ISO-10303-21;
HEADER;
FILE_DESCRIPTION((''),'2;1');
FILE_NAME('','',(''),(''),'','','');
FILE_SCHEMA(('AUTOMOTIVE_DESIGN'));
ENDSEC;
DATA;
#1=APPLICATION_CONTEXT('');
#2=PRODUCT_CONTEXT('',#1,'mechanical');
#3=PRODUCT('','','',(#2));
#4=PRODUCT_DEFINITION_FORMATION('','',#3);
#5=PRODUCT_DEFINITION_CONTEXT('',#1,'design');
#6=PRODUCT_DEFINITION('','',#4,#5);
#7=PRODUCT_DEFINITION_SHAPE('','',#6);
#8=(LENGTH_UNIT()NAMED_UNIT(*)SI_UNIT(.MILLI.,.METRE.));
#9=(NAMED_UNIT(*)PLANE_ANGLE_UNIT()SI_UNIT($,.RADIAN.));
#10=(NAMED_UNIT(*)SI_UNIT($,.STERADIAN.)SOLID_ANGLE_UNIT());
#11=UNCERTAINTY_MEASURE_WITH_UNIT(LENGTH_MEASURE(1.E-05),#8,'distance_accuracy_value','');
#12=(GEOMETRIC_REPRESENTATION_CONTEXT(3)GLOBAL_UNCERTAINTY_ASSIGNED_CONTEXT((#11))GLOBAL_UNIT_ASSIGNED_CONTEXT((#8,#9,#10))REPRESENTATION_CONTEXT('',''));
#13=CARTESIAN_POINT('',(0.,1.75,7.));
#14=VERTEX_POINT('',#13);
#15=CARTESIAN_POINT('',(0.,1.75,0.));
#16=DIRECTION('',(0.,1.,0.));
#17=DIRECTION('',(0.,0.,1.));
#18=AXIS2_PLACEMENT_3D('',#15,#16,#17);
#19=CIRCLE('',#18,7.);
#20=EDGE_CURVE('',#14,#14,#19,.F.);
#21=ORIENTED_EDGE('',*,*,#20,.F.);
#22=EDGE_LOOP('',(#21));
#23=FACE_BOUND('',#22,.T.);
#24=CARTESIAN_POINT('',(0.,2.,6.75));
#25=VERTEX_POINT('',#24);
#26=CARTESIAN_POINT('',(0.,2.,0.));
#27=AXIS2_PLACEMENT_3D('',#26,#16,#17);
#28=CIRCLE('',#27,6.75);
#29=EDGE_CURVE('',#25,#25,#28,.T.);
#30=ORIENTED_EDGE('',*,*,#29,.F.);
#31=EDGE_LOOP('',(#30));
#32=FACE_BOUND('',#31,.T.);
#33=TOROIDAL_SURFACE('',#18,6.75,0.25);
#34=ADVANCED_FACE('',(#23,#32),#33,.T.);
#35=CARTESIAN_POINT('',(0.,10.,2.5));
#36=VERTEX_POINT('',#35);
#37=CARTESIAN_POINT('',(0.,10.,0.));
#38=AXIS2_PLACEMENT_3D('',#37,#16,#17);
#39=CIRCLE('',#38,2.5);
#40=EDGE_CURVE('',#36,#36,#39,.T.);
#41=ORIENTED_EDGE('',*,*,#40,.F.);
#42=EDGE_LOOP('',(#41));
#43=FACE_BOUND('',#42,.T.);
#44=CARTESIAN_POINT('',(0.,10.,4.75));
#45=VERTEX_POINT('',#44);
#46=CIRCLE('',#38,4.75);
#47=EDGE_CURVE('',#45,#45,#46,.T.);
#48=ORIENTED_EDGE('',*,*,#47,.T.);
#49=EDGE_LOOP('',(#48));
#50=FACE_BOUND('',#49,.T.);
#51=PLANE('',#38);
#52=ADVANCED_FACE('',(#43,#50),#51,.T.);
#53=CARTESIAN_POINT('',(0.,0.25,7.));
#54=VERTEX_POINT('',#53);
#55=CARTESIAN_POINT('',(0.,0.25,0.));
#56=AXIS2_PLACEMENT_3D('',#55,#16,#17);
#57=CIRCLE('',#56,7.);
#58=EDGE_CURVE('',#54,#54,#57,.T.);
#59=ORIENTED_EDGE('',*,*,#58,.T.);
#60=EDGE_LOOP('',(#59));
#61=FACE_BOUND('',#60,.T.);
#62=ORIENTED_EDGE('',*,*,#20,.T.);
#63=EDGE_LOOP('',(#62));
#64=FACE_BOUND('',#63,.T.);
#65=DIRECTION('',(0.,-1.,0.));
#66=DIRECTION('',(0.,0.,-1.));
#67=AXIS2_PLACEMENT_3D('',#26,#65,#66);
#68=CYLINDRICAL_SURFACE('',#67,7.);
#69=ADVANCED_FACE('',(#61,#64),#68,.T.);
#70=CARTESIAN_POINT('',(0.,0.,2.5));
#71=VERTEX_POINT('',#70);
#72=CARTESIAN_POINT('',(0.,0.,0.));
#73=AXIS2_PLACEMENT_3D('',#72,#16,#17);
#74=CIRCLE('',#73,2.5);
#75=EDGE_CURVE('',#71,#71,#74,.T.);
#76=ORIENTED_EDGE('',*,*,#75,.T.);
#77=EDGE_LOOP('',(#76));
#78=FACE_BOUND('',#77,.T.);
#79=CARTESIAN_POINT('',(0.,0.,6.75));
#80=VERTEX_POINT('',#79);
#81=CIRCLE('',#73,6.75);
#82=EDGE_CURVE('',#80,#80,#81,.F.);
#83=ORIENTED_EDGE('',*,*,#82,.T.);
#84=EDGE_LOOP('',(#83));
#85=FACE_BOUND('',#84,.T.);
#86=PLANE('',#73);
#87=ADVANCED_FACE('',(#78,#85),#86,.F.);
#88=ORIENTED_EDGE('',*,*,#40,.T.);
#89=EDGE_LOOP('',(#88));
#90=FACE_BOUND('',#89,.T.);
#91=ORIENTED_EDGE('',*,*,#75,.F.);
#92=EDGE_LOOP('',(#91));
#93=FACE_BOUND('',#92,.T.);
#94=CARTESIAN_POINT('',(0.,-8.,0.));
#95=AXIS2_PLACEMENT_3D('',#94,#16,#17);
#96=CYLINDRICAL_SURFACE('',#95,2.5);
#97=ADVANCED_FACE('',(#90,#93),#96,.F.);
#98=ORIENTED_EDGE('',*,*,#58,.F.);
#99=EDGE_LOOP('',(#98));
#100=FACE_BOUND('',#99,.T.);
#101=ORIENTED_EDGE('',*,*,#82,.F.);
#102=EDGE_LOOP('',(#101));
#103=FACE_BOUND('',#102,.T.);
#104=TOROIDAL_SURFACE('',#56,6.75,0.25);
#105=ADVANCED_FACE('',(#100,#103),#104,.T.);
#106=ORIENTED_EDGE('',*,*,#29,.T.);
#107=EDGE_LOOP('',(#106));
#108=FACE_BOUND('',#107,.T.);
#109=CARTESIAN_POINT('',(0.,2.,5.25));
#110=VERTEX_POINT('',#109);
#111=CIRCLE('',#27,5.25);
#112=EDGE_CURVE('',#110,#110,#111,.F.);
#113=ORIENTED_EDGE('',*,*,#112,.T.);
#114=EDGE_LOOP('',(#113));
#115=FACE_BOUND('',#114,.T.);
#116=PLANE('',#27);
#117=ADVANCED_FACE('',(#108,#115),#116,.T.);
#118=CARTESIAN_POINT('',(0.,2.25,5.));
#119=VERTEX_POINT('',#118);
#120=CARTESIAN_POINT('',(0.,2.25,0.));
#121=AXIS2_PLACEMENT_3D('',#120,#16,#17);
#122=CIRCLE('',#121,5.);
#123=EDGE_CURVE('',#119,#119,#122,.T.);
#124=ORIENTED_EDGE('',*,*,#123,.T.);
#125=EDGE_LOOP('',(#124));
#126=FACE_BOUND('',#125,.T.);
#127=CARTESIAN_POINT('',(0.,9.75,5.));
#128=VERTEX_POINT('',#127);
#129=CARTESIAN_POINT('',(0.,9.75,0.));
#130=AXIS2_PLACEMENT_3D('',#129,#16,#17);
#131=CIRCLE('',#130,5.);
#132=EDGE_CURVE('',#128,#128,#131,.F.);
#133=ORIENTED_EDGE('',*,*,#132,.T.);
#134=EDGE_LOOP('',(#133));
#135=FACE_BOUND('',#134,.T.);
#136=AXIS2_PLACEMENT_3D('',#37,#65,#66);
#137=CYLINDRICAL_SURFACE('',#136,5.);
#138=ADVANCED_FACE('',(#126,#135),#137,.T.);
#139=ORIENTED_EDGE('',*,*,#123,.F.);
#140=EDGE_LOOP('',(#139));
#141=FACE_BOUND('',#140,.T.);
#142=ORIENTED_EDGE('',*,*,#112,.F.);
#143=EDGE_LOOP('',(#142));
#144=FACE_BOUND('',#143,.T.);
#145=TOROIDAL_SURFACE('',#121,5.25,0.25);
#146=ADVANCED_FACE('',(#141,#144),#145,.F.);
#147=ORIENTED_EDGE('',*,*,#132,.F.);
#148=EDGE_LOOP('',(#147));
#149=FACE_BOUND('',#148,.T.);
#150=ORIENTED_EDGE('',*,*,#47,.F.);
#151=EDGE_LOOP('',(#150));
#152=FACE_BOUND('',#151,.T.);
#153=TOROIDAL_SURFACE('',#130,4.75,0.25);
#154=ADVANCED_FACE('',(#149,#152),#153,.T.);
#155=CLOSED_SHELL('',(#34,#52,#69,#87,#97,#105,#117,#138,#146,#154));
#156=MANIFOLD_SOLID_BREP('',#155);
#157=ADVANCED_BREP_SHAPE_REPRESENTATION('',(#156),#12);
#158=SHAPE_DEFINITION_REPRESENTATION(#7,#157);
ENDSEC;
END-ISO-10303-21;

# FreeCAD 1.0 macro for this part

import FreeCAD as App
import Part
import Sketcher

V = App.Vector
Q = App.Units.Quantity


def edges_at(feature, points):
    """Names of the edges that pass closest to the given points."""
    edges = feature.Shape.Edges
    near = lambda p: min(range(len(edges)), key=lambda i: edges[i].distToShape(Part.Vertex(*p))[0])
    return sorted({f"Edge{near(p) + 1}" for p in points})

doc = App.newDocument("Part")
body = doc.addObject("PartDesign::Body", "Body")

# Sketch on XZ plane
sketch1 = doc.addObject("Sketcher::SketchObject", "Sketch")
body.addObject(sketch1)
sketch1.AttachmentSupport = (doc.XZ_Plane, [""])
sketch1.MapMode = "FlatFace"
sketch1.addGeometry(Part.Circle(V(0, 0, 0), V(0, 0, 1), 7), False)
sketch1.addConstraint([
    Sketcher.Constraint("Coincident", 0, 3, -1, 1),
    Sketcher.Constraint("Diameter", 0, Q("14 mm")),
])
pad1 = doc.addObject("PartDesign::Pad", "Pad")
body.addObject(pad1)
pad1.Profile = sketch1
pad1.Length = 2
pad1.Reversed = True

# Sketch on XZ plane
sketch2 = doc.addObject("Sketcher::SketchObject", "Sketch001")
body.addObject(sketch2)
sketch2.AttachmentSupport = (doc.XZ_Plane, [""])
sketch2.MapMode = "FlatFace"
sketch2.AttachmentOffset = App.Placement(V(0, 0, -2), App.Rotation())
sketch2.addGeometry(Part.Circle(V(0, 0, 0), V(0, 0, 1), 5), False)
sketch2.addConstraint([
    Sketcher.Constraint("Coincident", 0, 3, -1, 1),
    Sketcher.Constraint("Diameter", 0, Q("10 mm")),
])
pad2 = doc.addObject("PartDesign::Pad", "Pad001")
body.addObject(pad2)
pad2.Profile = sketch2
pad2.Length = 8
pad2.Reversed = True

# Sketch on XZ plane
sketch3 = doc.addObject("Sketcher::SketchObject", "Sketch002")
body.addObject(sketch3)
sketch3.AttachmentSupport = (doc.XZ_Plane, [""])
sketch3.MapMode = "FlatFace"
sketch3.AttachmentOffset = App.Placement(V(0, 0, -10), App.Rotation())
sketch3.addGeometry(Part.Circle(V(0, 0, 0), V(0, 0, 1), 2.5), False)
sketch3.addConstraint([
    Sketcher.Constraint("Coincident", 0, 3, -1, 1),
    Sketcher.Constraint("Diameter", 0, Q("5 mm")),
])
pocket1 = doc.addObject("PartDesign::Pocket", "Pocket")
body.addObject(pocket1)
pocket1.Profile = sketch3
pocket1.Length = 18
pocket1.Reversed = True
doc.recompute()

fillet = doc.addObject("PartDesign::Fillet", "Fillet")
body.addObject(fillet)
fillet.Base = (pocket1, edges_at(pocket1, [
    (-7, 0, 0),
    (-7, 2, 0),
    (-5, 2, 0),
    (-5, 10, 0),
]))
fillet.Radius = 0.25

doc.recompute()
